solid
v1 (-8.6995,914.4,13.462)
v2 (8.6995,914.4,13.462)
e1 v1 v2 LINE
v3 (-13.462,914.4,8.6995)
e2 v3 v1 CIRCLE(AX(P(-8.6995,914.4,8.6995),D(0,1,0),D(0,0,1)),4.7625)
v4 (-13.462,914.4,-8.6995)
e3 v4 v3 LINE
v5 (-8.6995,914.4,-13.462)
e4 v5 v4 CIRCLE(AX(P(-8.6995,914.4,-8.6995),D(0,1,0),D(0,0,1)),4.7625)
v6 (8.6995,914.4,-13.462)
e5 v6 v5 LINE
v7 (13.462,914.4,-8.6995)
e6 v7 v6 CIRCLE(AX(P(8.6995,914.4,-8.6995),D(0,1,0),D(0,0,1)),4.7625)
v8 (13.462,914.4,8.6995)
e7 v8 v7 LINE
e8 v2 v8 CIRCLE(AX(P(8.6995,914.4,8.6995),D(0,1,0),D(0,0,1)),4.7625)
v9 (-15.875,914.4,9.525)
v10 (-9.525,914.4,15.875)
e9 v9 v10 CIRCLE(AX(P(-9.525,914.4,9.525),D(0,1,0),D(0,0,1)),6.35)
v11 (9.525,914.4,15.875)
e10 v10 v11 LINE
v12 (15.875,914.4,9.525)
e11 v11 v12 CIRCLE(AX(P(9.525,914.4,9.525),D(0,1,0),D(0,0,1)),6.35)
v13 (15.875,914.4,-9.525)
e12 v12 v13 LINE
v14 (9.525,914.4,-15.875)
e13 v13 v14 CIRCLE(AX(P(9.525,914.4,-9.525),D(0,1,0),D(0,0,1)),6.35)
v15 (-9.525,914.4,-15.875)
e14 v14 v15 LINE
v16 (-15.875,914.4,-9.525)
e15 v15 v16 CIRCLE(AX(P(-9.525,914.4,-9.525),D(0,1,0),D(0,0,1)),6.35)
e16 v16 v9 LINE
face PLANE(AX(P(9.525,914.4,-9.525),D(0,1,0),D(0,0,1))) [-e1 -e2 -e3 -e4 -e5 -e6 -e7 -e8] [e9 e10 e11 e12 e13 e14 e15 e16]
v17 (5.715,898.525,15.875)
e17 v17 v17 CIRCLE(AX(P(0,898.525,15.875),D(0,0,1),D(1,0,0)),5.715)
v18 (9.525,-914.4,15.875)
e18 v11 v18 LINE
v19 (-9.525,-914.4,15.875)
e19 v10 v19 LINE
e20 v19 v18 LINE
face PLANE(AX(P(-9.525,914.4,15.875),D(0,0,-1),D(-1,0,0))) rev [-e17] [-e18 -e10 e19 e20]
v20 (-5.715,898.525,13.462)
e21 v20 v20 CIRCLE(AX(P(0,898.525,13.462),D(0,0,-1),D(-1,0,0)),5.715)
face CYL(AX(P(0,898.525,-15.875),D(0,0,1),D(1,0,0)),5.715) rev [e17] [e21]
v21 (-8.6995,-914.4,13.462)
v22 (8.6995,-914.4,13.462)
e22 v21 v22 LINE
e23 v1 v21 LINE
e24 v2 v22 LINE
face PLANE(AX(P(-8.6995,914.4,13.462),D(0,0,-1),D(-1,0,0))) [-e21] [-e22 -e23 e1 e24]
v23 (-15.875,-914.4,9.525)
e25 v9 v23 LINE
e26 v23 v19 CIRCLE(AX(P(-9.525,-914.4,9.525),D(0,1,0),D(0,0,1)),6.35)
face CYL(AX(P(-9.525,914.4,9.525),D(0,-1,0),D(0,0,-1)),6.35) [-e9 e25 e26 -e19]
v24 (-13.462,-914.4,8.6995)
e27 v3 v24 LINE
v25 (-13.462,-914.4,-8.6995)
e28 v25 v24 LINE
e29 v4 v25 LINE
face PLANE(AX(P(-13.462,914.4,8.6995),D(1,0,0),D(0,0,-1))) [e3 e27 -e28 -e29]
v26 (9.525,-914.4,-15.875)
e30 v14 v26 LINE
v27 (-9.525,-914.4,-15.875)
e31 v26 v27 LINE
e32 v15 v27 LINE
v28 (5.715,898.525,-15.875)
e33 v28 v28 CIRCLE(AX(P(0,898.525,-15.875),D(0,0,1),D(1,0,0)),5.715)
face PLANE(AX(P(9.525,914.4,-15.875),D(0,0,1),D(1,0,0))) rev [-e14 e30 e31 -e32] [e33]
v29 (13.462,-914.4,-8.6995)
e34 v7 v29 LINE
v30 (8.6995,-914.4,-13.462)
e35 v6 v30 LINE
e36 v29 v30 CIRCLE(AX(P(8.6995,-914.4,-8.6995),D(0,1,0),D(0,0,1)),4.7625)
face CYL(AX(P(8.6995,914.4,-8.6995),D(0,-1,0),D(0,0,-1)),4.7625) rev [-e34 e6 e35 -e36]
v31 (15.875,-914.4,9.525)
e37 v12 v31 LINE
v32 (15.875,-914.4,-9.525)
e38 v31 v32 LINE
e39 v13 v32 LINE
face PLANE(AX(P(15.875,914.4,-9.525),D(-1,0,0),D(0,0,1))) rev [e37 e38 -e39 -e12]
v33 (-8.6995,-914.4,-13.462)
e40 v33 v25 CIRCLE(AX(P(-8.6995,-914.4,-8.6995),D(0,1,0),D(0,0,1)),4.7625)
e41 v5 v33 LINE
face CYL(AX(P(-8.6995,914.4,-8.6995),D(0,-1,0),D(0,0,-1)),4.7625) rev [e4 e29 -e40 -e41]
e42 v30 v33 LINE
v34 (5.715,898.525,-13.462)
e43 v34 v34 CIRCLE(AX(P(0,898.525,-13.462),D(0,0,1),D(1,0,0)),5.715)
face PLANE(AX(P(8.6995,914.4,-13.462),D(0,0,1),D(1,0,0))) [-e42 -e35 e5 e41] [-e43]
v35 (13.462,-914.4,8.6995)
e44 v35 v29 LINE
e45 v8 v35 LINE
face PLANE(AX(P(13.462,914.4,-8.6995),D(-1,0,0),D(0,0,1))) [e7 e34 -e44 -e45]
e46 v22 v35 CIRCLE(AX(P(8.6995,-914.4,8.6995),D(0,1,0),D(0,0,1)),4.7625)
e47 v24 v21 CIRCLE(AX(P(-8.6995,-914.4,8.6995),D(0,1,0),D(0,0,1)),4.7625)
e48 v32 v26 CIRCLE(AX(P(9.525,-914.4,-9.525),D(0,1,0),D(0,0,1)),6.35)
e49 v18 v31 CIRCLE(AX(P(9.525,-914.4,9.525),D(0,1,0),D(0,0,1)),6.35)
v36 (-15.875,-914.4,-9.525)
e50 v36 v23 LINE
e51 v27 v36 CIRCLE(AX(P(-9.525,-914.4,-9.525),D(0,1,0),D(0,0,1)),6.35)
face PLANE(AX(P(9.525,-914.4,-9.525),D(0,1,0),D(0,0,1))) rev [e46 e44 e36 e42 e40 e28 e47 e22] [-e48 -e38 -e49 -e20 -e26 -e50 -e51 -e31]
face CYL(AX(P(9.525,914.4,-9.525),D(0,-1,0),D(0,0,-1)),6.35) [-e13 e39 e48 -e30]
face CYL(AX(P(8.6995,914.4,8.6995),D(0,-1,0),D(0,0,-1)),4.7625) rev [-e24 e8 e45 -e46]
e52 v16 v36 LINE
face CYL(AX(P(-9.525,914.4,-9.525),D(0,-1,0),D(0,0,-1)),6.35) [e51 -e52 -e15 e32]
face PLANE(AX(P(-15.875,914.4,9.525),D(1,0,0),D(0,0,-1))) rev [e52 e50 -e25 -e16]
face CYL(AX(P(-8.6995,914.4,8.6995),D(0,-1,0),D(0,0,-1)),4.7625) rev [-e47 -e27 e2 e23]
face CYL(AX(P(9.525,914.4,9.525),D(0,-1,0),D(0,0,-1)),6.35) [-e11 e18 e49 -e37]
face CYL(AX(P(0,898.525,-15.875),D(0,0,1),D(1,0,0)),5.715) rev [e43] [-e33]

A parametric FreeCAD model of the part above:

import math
import FreeCAD as App
import Part
import Sketcher
from FreeCAD import Vector
Q = App.Units.Quantity

doc = App.newDocument("Part")
body = doc.addObject("PartDesign::Body", "Body")

# Sketch on XZ plane
sketch1 = doc.addObject("Sketcher::SketchObject", "Sketch")
body.addObject(sketch1)
sketch1.AttachmentSupport = (doc.XZ_Plane, [""])
sketch1.MapMode = "FlatFace"
sketch1.addGeometry([
    Part.LineSegment(Vector(-9.525, 15.875, 0), Vector(9.525, 15.875, 0)),  # 0
    Part.ArcOfCircle(Part.Circle(Vector(9.525, 9.525, 0), Vector(0, 0, 1), 6.35), math.radians(0), math.radians(90)),  # 1
    Part.LineSegment(Vector(15.875, 9.525, 0), Vector(15.875, -9.525, 0)),  # 2
    Part.ArcOfCircle(Part.Circle(Vector(9.525, -9.525, 0), Vector(0, 0, 1), 6.35), math.radians(-90), math.radians(0)),  # 3
    Part.LineSegment(Vector(9.525, -15.875, 0), Vector(-9.525, -15.875, 0)),  # 4
    Part.ArcOfCircle(Part.Circle(Vector(-9.525, -9.525, 0), Vector(0, 0, 1), 6.35), math.radians(180), math.radians(270)),  # 5
    Part.LineSegment(Vector(-15.875, -9.525, 0), Vector(-15.875, 9.525, 0)),  # 6
    Part.ArcOfCircle(Part.Circle(Vector(-9.525, 9.525, 0), Vector(0, 0, 1), 6.35), math.radians(90), math.radians(180)),  # 7
    Part.LineSegment(Vector(8.6995, 13.462, 0), Vector(-8.6995, 13.462, 0)),  # 8
    Part.ArcOfCircle(Part.Circle(Vector(-8.6995, 8.6995, 0), Vector(0, 0, 1), 4.7625), math.radians(90), math.radians(180)),  # 9
    Part.LineSegment(Vector(-13.462, 8.6995, 0), Vector(-13.462, -8.6995, 0)),  # 10
    Part.ArcOfCircle(Part.Circle(Vector(-8.6995, -8.6995, 0), Vector(0, 0, 1), 4.7625), math.radians(-180), math.radians(-90)),  # 11
    Part.LineSegment(Vector(-8.6995, -13.462, 0), Vector(8.6995, -13.462, 0)),  # 12
    Part.ArcOfCircle(Part.Circle(Vector(8.6995, -8.6995, 0), Vector(0, 0, 1), 4.7625), math.radians(-90), math.radians(0)),  # 13
    Part.LineSegment(Vector(13.462, -8.6995, 0), Vector(13.462, 8.6995, 0)),  # 14
    Part.ArcOfCircle(Part.Circle(Vector(8.6995, 8.6995, 0), Vector(0, 0, 1), 4.7625), math.radians(0), math.radians(90)),  # 15
], False)
sketch1.addConstraint([
    Sketcher.Constraint("Tangent", 0, 2, 1, 2),
    Sketcher.Constraint("Tangent", 1, 1, 2, 1),
    Sketcher.Constraint("Tangent", 2, 2, 3, 2),
    Sketcher.Constraint("Tangent", 3, 1, 4, 1),
    Sketcher.Constraint("Tangent", 4, 2, 5, 2),
    Sketcher.Constraint("Tangent", 5, 1, 6, 1),
    Sketcher.Constraint("Tangent", 6, 2, 7, 2),
    Sketcher.Constraint("Tangent", 7, 1, 0, 1),
    Sketcher.Constraint("Tangent", 8, 2, 9, 1),
    Sketcher.Constraint("Tangent", 9, 2, 10, 1),
    Sketcher.Constraint("Tangent", 10, 2, 11, 1),
    Sketcher.Constraint("Tangent", 11, 2, 12, 1),
    Sketcher.Constraint("Tangent", 12, 2, 13, 1),
    Sketcher.Constraint("Tangent", 13, 2, 14, 1),
    Sketcher.Constraint("Tangent", 14, 2, 15, 1),
    Sketcher.Constraint("Tangent", 15, 2, 8, 1),
    Sketcher.Constraint("Horizontal", 0),
    Sketcher.Constraint("Vertical", 2),
    Sketcher.Constraint("Horizontal", 4),
    Sketcher.Constraint("Vertical", 6),
    Sketcher.Constraint("Horizontal", 8),
    Sketcher.Constraint("Vertical", 10),
    Sketcher.Constraint("Horizontal", 12),
    Sketcher.Constraint("Vertical", 14),
    Sketcher.Constraint("Equal", 1, 3),
    Sketcher.Constraint("Equal", 3, 5),
    Sketcher.Constraint("Equal", 5, 7),
    Sketcher.Constraint("Equal", 9, 11),
    Sketcher.Constraint("Equal", 11, 13),
    Sketcher.Constraint("Equal", 13, 15),
    Sketcher.Constraint("Symmetric", 1, 3, 5, 3, -1, 1),
    Sketcher.Constraint("Symmetric", 9, 3, 13, 3, -1, 1),
    Sketcher.Constraint("Equal", 4, 2),
    Sketcher.Constraint("Equal", 12, 10),
    Sketcher.Constraint("Radius", 1, Q("0.25 in")),
    Sketcher.Constraint("Radius", 9, Q("0.1875 in")),
    Sketcher.Constraint("DistanceX", 0, 1, 0, 2, Q("0.75 in")),
    Sketcher.Constraint("DistanceX", 8, 2, 8, 1, Q("0.685 in")),
])
pad1 = doc.addObject("PartDesign::Pad", "Pad")
body.addObject(pad1)
pad1.Profile = sketch1
pad1.Length = Q("72 in")
pad1.Midplane = True

# Sketch on XY plane
sketch2 = doc.addObject("Sketcher::SketchObject", "Sketch001")
body.addObject(sketch2)
sketch2.AttachmentSupport = (doc.XY_Plane, [""])
sketch2.MapMode = "FlatFace"
sketch2.AttachmentOffset = App.Placement(Vector(0, 0, 0.625 * 25.4), App.Rotation())
sketch2.addGeometry(Part.Circle(Vector(0, 898.525, 0), Vector(0, 0, 1), 5.715), False)
sketch2.addConstraint([
    Sketcher.Constraint("PointOnObject", 0, 3, -2),
    Sketcher.Constraint("Diameter", 0, Q("0.45 in")),
    Sketcher.Constraint("DistanceY", -1, 1, 0, 3, Q("35.375 in")),
])
pocket1 = doc.addObject("PartDesign::Pocket", "Pocket")
body.addObject(pocket1)
pocket1.Profile = sketch2
pocket1.Type = "ThroughAll"

doc.recompute()
